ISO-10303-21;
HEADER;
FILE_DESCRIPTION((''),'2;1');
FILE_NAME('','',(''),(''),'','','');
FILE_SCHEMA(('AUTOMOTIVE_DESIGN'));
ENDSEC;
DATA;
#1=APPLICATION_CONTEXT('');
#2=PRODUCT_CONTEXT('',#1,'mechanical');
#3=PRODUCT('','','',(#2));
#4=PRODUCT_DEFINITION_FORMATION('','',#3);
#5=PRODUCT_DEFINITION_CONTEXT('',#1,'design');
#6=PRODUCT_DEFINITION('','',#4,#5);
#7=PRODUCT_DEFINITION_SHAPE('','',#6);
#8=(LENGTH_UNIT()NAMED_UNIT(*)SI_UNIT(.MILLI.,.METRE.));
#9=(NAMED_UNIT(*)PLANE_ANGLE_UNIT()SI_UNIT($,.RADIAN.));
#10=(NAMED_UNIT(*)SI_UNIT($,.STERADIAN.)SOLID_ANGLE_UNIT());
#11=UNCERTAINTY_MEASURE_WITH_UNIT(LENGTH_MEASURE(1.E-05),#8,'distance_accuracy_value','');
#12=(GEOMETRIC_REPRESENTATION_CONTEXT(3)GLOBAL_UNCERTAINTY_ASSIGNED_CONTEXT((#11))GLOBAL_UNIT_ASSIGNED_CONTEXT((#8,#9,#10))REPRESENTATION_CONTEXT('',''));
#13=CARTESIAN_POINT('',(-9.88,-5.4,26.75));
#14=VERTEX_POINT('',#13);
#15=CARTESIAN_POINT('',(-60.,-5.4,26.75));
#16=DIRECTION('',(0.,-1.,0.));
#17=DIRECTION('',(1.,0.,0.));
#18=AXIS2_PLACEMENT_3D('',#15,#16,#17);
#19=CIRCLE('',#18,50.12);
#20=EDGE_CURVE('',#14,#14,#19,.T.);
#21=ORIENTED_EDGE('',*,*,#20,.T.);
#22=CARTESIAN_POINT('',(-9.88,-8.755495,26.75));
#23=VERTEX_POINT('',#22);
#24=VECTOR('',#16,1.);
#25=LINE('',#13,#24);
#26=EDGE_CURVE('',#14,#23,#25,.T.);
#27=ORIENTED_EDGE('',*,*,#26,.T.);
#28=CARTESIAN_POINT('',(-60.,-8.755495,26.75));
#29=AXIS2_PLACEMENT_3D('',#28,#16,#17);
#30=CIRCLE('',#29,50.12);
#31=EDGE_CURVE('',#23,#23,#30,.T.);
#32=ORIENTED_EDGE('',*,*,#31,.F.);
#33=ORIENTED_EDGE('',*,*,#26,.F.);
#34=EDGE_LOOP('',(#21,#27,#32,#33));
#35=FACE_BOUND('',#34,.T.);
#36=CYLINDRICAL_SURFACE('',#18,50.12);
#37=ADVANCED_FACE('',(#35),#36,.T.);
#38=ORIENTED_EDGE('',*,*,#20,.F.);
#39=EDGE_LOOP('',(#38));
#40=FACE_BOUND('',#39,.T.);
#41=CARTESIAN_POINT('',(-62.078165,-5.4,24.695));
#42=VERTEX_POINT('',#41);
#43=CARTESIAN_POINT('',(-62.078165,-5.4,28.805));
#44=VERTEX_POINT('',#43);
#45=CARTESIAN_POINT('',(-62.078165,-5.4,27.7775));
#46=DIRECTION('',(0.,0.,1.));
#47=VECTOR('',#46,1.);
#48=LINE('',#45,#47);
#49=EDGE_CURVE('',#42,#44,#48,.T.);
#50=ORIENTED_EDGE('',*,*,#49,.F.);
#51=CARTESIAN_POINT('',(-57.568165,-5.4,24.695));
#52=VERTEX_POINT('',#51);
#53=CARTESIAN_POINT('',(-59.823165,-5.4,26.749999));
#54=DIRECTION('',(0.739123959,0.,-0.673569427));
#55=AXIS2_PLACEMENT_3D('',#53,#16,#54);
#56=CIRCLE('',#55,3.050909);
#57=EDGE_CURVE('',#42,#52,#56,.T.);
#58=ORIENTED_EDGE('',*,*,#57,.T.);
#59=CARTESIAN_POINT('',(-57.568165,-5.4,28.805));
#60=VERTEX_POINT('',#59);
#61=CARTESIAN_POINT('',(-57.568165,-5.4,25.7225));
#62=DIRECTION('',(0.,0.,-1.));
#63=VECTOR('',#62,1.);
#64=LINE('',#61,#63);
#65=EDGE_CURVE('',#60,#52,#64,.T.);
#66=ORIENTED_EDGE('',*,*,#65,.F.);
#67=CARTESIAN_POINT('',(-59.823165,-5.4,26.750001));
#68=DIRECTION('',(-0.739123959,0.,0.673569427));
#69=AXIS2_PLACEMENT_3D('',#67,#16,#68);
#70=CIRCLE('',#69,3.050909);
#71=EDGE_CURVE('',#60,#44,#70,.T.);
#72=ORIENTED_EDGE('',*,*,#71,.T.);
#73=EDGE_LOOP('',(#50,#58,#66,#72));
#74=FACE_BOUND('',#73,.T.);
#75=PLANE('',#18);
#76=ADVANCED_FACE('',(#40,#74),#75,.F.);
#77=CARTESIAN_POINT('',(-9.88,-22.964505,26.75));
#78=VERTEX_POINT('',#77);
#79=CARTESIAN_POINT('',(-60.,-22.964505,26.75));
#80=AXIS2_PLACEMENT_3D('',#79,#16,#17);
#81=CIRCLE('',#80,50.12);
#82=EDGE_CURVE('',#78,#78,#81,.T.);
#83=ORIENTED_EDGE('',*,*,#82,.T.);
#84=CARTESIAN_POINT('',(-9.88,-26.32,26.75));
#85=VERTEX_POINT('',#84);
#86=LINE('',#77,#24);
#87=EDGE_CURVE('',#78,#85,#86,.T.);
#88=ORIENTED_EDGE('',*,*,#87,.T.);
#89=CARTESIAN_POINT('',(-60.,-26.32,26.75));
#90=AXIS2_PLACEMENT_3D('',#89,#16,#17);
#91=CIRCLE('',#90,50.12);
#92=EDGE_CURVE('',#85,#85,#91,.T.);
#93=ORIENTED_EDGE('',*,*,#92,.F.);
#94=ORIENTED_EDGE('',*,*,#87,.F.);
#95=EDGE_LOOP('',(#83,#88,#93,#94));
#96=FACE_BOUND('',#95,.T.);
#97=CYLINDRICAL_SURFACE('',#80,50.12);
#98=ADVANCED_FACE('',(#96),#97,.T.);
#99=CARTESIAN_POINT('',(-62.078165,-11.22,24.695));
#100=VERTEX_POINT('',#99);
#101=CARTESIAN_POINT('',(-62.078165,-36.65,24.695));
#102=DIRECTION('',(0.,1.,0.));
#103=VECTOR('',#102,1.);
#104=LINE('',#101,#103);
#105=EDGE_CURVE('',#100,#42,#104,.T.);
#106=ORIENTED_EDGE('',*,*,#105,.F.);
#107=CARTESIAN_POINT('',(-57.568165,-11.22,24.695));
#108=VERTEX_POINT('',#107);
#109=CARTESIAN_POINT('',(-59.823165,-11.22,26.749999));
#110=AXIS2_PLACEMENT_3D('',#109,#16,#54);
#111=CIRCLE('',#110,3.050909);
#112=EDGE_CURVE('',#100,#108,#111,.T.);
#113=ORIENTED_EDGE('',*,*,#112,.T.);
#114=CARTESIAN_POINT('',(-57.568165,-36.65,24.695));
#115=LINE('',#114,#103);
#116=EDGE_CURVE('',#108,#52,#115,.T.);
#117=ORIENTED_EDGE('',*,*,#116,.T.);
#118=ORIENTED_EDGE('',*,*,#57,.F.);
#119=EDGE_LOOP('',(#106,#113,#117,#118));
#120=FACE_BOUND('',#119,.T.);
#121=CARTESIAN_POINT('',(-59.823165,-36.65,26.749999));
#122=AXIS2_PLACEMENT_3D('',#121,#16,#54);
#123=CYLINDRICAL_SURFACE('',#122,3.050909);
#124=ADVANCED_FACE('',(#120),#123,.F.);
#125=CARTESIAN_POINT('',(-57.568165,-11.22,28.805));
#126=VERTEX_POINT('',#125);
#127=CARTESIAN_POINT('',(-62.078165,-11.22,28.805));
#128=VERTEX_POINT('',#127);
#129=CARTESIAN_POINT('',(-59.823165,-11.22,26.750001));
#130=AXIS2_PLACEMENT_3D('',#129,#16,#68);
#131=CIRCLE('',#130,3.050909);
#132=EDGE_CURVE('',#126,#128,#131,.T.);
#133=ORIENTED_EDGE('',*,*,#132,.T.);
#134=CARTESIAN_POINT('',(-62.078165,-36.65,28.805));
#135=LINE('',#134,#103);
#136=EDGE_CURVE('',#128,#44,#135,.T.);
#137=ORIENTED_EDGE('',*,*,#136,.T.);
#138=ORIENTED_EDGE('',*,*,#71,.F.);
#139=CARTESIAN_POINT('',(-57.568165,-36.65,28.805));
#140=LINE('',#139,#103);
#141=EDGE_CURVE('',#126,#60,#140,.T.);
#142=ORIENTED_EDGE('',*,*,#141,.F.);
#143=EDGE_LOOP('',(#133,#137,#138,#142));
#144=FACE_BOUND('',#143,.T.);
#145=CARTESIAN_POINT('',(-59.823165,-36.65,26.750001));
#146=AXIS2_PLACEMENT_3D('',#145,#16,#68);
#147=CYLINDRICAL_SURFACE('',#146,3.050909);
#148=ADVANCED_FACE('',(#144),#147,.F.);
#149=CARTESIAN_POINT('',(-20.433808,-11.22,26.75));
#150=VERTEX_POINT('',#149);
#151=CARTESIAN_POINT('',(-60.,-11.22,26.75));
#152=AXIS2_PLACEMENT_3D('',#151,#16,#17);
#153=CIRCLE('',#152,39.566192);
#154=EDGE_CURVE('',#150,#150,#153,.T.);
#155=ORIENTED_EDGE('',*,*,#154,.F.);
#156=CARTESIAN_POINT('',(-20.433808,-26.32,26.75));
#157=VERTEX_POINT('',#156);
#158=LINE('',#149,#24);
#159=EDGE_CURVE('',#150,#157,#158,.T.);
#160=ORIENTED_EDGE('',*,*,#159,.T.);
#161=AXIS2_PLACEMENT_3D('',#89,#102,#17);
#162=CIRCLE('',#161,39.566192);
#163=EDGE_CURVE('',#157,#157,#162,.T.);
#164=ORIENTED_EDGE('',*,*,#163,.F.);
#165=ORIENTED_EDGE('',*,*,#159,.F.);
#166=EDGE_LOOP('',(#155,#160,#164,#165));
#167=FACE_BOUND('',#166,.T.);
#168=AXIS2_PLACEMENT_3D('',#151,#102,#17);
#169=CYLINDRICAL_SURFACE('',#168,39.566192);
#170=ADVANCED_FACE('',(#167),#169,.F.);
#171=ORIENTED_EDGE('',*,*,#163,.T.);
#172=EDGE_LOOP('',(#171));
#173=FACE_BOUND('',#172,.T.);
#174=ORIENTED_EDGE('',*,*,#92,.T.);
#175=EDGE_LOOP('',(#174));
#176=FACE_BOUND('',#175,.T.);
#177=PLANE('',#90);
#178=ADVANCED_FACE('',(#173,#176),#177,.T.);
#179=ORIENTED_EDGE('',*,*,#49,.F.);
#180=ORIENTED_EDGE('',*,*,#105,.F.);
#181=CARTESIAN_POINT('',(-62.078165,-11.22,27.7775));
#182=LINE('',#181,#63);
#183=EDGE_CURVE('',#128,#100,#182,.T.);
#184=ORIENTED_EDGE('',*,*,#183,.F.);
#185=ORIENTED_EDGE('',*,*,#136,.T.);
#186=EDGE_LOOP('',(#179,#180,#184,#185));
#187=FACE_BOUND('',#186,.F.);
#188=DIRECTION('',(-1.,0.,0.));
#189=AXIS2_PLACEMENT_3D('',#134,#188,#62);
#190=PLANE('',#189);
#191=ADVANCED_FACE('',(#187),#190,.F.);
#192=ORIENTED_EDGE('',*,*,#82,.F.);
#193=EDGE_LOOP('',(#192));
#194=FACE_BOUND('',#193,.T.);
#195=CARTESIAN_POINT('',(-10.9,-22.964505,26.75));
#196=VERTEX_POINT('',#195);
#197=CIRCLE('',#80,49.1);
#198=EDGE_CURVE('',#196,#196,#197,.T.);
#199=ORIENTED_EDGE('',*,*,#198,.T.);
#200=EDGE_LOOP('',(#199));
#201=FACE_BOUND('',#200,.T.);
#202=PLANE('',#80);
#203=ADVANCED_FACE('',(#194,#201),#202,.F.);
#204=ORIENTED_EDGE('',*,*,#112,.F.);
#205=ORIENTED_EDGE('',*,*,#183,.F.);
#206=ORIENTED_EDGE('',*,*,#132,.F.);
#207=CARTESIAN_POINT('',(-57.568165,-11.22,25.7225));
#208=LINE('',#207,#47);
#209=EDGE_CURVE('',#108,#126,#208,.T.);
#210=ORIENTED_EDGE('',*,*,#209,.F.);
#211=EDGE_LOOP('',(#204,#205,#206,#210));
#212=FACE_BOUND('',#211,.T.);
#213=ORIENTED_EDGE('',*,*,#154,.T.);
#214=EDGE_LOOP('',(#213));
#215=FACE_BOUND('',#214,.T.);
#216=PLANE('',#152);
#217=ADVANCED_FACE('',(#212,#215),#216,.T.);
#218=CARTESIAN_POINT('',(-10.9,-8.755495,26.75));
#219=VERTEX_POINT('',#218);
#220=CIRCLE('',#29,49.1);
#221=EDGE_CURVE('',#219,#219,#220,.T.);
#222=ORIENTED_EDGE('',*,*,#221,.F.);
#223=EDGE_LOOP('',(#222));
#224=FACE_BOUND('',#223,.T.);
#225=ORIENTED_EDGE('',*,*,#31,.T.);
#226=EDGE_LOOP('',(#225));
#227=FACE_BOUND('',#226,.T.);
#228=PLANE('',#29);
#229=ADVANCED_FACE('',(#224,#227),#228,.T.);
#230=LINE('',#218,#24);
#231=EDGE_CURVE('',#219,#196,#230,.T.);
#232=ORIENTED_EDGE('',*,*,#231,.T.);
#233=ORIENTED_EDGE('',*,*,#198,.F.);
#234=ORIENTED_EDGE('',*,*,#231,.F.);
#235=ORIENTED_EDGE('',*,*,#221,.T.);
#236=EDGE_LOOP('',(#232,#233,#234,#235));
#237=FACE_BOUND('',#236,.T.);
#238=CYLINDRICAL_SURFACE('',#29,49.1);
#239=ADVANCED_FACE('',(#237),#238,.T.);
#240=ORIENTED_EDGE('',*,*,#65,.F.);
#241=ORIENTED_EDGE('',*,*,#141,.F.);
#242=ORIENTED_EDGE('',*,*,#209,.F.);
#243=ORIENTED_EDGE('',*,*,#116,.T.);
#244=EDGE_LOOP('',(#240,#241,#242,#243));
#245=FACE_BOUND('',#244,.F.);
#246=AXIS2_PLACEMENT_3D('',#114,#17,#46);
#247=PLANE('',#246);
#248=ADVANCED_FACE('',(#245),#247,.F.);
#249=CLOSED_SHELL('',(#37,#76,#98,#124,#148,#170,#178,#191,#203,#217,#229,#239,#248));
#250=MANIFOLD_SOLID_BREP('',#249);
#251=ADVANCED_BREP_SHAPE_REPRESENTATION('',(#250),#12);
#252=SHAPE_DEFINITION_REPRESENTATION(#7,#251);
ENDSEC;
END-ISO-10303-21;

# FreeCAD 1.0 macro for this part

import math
import FreeCAD as App
import Part
import Sketcher

V = App.Vector
Q = App.Units.Quantity

doc = App.newDocument("Part")
params = doc.addObject("Spreadsheet::Sheet", "Params")
for row, (alias, value) in enumerate([
    ("sketch1_width", "4.11 mm"),
    ("pad1_length", "40 mm"),
    ("pad2_length", "20 mm"),
    ("sketch3_width", "50.12 mm"),
    ("sketch3_width2", "1.02 mm"),
    ("sketch3_height", "20.92 mm"),
    ("revolution_angle", "360 deg"),
], start=1):
    params.set(f"A{row}", alias)
    params.set(f"B{row}", "=" + value)
    params.setAlias(f"B{row}", alias)

body = doc.addObject("PartDesign::Body", "Body")

# Sketch on XZ plane
sketch1 = body.newObject("Sketcher::SketchObject", "Sketch")
sketch1.AttachmentSupport = (doc.getObject("XZ_Plane"), [""])
sketch1.MapMode = "FlatFace"
sketch1.AttachmentOffset = App.Placement(V(0, 0, 17.4), App.Rotation())
sketch1.addGeometry(Part.LineSegment(V(-2.055, 2.078165, 0), V(2.055, 2.078165, 0)), False)
sketch1.addGeometry(Part.ArcOfCircle(Part.Circle(V(0.000001, -0.176835, 0), V(0, 0, 1), 3.050909), math.radians(-47.656844), math.radians(47.656844)), False)
sketch1.addGeometry(Part.LineSegment(V(2.055, -2.431835, 0), V(-2.055, -2.431835, 0)), False)
sketch1.addGeometry(Part.ArcOfCircle(Part.Circle(V(-0.000001, -0.176835, 0), V(0, 0, 1), 3.050909), math.radians(132.343156), math.radians(227.656844)), False)
sketch1.addConstraint(Sketcher.Constraint("Coincident", 0, 2, 1, 2))
sketch1.addConstraint(Sketcher.Constraint("Coincident", 1, 1, 2, 1))
sketch1.addConstraint(Sketcher.Constraint("Coincident", 2, 2, 3, 2))
sketch1.addConstraint(Sketcher.Constraint("Coincident", 3, 1, 0, 1))
sketch1.addConstraint(Sketcher.Constraint("Horizontal", 0))
sketch1.addConstraint(Sketcher.Constraint("Horizontal", 2))
sketch1.addConstraint(Sketcher.Constraint("Coincident", 3, 3, 1, 3))
sketch1.addConstraint(Sketcher.Constraint("Equal", 1, 3))
sketch1.addConstraint(Sketcher.Constraint("PointOnObject", 1, 3, -2))
sketch1.addConstraint(Sketcher.Constraint("Vertical", 0, 2, 1, 1))
sketch1.addConstraint(Sketcher.Constraint("DistanceX", 0, 1, 0, 2, Q("4.11 mm")))
sketch1.addConstraint(Sketcher.Constraint("Radius", 1, Q("3.050909 mm")))
sketch1.addConstraint(Sketcher.Constraint("DistanceY", 1, 3, -1, 1, Q("0.176835 mm")))
sketch1.setExpression("Constraints[10]", "Params.sketch1_width")
pad1 = body.newObject("PartDesign::Pad", "Pad")
pad1.Profile = sketch1
pad1.setExpression("Length", "Params.pad1_length")
pad1.Reversed = True
body2 = doc.addObject("PartDesign::Body", "Body001")
doc.recompute()

body.Placement = App.Placement(V(0, 0, 0), App.Rotation(V(1, 0, 0), 270))
boolean = body2.newObject("PartDesign::Boolean", "Boolean")
boolean.Type = "Fuse"
boolean.addObjects([body])
body3 = doc.addObject("PartDesign::Body", "Body002")
doc.recompute()

body2.Placement = App.Placement(V(0, 0, 13.85), App.Rotation(V(0, 0, 1), 90))
boolean2 = body3.newObject("PartDesign::Boolean", "Boolean001")
boolean2.Type = "Fuse"
boolean2.addObjects([body2])
body4 = doc.addObject("PartDesign::Body", "Body003")

# Sketch on XY plane
sketch2 = body4.newObject("Sketcher::SketchObject", "Sketch001")
sketch2.AttachmentSupport = (doc.getObject("XY_Plane003"), [""])
sketch2.MapMode = "FlatFace"
sketch2.AttachmentOffset = App.Placement(V(0, 0, 20.92), App.Rotation())
sketch2.addGeometry(Part.Circle(V(0, 0, 0), V(0, 0, 1), 39.566192), False)
sketch2.addConstraint(Sketcher.Constraint("Coincident", 0, 3, -1, 1))
sketch2.addConstraint(Sketcher.Constraint("Diameter", 0, Q("79.132384 mm")))
pad2 = body4.newObject("PartDesign::Pad", "Pad001")
pad2.Profile = sketch2
pad2.setExpression("Length", "Params.pad2_length")
body5 = doc.addObject("PartDesign::Body", "Body004")
doc.recompute()

body4.Placement = App.Placement(V(0, 0, -15.1), App.Rotation(V(0, 0, 1), 0))
boolean3 = body5.newObject("PartDesign::Boolean", "Boolean002")
boolean3.Type = "Fuse"
boolean3.addObjects([body4])
body6 = doc.addObject("PartDesign::Body", "Body005")

# Sketch on XZ plane
sketch3 = body6.newObject("Sketcher::SketchObject", "Sketch002")
sketch3.AttachmentSupport = (doc.getObject("XZ_Plane005"), [""])
sketch3.MapMode = "FlatFace"
sketch3.addGeometry(Part.LineSegment(V(0, 0, 0), V(50.12, 0, 0)), False)
sketch3.addGeometry(Part.LineSegment(V(50.12, 0, 0), V(50.12, 3.355495, 0)), False)
sketch3.addGeometry(Part.LineSegment(V(50.12, 3.355495, 0), V(49.1, 3.355495, 0)), False)
sketch3.addGeometry(Part.LineSegment(V(49.1, 3.355495, 0), V(49.1, 17.564505, 0)), False)
sketch3.addGeometry(Part.LineSegment(V(49.1, 17.564505, 0), V(50.12, 17.564505, 0)), False)
sketch3.addGeometry(Part.LineSegment(V(50.12, 17.564505, 0), V(50.12, 20.92, 0)), False)
sketch3.addGeometry(Part.LineSegment(V(50.12, 20.92, 0), V(0, 20.92, 0)), False)
sketch3.addGeometry(Part.LineSegment(V(0, 20.92, 0), V(0, 0, 0)), False)
sketch3.addConstraint(Sketcher.Constraint("Coincident", 0, 2, 1, 1))
sketch3.addConstraint(Sketcher.Constraint("Coincident", 1, 2, 2, 1))
sketch3.addConstraint(Sketcher.Constraint("Coincident", 2, 2, 3, 1))
sketch3.addConstraint(Sketcher.Constraint("Coincident", 3, 2, 4, 1))
sketch3.addConstraint(Sketcher.Constraint("Coincident", 4, 2, 5, 1))
sketch3.addConstraint(Sketcher.Constraint("Coincident", 5, 2, 6, 1))
sketch3.addConstraint(Sketcher.Constraint("Coincident", 6, 2, 7, 1))
sketch3.addConstraint(Sketcher.Constraint("Coincident", 7, 2, 0, 1))
sketch3.addConstraint(Sketcher.Constraint("Horizontal", 0))
sketch3.addConstraint(Sketcher.Constraint("Vertical", 1))
sketch3.addConstraint(Sketcher.Constraint("Horizontal", 2))
sketch3.addConstraint(Sketcher.Constraint("Vertical", 3))
sketch3.addConstraint(Sketcher.Constraint("Horizontal", 4))
sketch3.addConstraint(Sketcher.Constraint("Vertical", 5))
sketch3.addConstraint(Sketcher.Constraint("Horizontal", 6))
sketch3.addConstraint(Sketcher.Constraint("Vertical", 7))
sketch3.addConstraint(Sketcher.Constraint("Coincident", 7, 2, -1, 1))
sketch3.addConstraint(Sketcher.Constraint("Vertical", 1, 2, 4, 2))
sketch3.addConstraint(Sketcher.Constraint("Equal", 1, 5))
sketch3.addConstraint(Sketcher.Constraint("DistanceX", 0, 1, 0, 2, Q("50.12 mm")))
sketch3.addConstraint(Sketcher.Constraint("DistanceX", 2, 2, 2, 1, Q("1.02 mm")))
sketch3.addConstraint(Sketcher.Constraint("DistanceY", 7, 2, 7, 1, Q("20.92 mm")))
sketch3.addConstraint(Sketcher.Constraint("DistanceY", 3, 1, 3, 2, Q("14.20901 mm")))
sketch3.setExpression("Constraints[19]", "Params.sketch3_width")
sketch3.setExpression("Constraints[20]", "Params.sketch3_width2")
sketch3.setExpression("Constraints[21]", "Params.sketch3_height")
revolution = body6.newObject("PartDesign::Revolution", "Revolution")
revolution.Profile = sketch3
revolution.ReferenceAxis = (sketch3, ["V_Axis"])
revolution.setExpression("Angle", "Params.revolution_angle")
doc.recompute()

boolean4 = body6.newObject("PartDesign::Boolean", "Boolean003")
boolean4.Type = "Cut"
boolean4.addObjects([body5])
doc.recompute()

boolean5 = body6.newObject("PartDesign::Boolean", "Boolean004")
boolean5.Type = "Cut"
boolean5.addObjects([body3])
body7 = doc.addObject("PartDesign::Body", "Body006")
doc.recompute()

body6.Placement = App.Placement(V(-60, -5.4, 26.75), App.Rotation(V(1, 0, 0), 90))
boolean6 = body7.newObject("PartDesign::Boolean", "Boolean005")
boolean6.Type = "Fuse"
boolean6.addObjects([body6])

doc.recompute()
